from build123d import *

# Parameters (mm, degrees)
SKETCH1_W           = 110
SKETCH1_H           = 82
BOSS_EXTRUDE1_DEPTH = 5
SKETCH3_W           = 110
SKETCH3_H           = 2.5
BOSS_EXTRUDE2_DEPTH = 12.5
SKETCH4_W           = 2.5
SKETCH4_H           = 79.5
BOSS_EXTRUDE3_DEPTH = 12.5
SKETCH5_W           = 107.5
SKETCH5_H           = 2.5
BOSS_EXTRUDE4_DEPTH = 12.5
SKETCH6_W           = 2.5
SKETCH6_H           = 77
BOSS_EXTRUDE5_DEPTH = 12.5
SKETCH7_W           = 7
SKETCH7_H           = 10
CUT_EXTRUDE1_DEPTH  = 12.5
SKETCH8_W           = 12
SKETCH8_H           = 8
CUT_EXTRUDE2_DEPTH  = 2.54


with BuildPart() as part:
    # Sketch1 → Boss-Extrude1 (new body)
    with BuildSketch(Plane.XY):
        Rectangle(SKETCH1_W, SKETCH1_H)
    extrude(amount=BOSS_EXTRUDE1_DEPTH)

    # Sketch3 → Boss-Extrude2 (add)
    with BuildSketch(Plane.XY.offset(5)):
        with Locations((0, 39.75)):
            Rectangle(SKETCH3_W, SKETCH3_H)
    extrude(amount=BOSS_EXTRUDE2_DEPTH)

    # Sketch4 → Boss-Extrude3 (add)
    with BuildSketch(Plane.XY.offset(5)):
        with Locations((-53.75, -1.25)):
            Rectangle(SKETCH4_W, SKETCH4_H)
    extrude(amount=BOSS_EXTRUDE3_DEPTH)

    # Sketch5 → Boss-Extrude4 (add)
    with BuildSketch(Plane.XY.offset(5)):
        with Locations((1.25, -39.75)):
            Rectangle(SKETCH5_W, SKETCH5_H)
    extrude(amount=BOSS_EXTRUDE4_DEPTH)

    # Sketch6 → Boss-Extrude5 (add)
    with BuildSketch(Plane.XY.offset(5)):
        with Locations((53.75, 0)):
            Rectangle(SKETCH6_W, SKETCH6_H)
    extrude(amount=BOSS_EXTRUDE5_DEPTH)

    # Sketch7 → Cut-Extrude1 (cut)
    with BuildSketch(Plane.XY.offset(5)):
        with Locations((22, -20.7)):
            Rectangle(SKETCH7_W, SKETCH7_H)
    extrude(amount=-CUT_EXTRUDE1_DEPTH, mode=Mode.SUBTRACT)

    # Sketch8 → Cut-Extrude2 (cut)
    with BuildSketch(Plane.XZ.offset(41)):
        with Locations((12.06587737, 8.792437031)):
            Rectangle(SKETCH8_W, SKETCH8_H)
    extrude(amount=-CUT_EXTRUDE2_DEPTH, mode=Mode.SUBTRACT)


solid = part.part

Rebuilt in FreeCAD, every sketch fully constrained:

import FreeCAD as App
import Part
import Sketcher
from FreeCAD import Vector
Q = App.Units.Quantity


def add_polygon(sketch, points):
    """Adds a closed chain of lines whose ends are joined by coincident constraints."""
    first, n = sketch.GeometryCount, len(points)
    for a, b in zip(points, points[1:] + points[:1]):
        sketch.addGeometry(Part.LineSegment(App.Vector(*a, 0), App.Vector(*b, 0)), False)
    for i in range(n):
        sketch.addConstraint(Sketcher.Constraint("Coincident", first + i, 2, first + (i + 1) % n, 1))

doc = App.newDocument("Part")
body = doc.addObject("PartDesign::Body", "Body")

sketch1 = body.newObject("Sketcher::SketchObject", "Sketch")
sketch1.AttachmentSupport = (doc.getObject("XY_Plane"), [""])
sketch1.MapMode = "FlatFace"
add_polygon(sketch1, [(-55, 41), (-55, -41), (55, -41), (55, 41)])
sketch1.addConstraint([
    Sketcher.Constraint("Vertical", 0),
    Sketcher.Constraint("Horizontal", 1),
    Sketcher.Constraint("Vertical", 2),
    Sketcher.Constraint("Horizontal", 3),
    Sketcher.Constraint("Symmetric", 0, 2, 2, 2, -1, 1),
    Sketcher.Constraint("DistanceX", 1, 1, 1, 2, Q("110 mm")),
    Sketcher.Constraint("DistanceY", 0, 2, 0, 1, Q("82 mm")),
])
pad1 = body.newObject("PartDesign::Pad", "Pad")
pad1.Profile = sketch1
pad1.Length = 5

sketch2 = body.newObject("Sketcher::SketchObject", "Sketch001")
sketch2.AttachmentSupport = (doc.getObject("XY_Plane"), [""])
sketch2.MapMode = "FlatFace"
sketch2.AttachmentOffset = App.Placement(Vector(0, 0, 5), App.Rotation())
add_polygon(sketch2, [(-55, 41), (-55, 38.5), (55, 38.5), (55, 41)])
sketch2.addConstraint([
    Sketcher.Constraint("Vertical", 0),
    Sketcher.Constraint("Horizontal", 1),
    Sketcher.Constraint("Vertical", 2),
    Sketcher.Constraint("Horizontal", 3),
    Sketcher.Constraint("DistanceX", 1, 1, 1, 2, Q("110 mm")),
    Sketcher.Constraint("DistanceY", 0, 2, 0, 1, Q("2.5 mm")),
    Sketcher.Constraint("DistanceX", 0, 2, -1, 1, Q("55 mm")),
    Sketcher.Constraint("DistanceY", -1, 1, 2, 2, Q("41 mm")),
])
pad2 = body.newObject("PartDesign::Pad", "Pad001")
pad2.Profile = sketch2
pad2.Length = 12.5

sketch3 = body.newObject("Sketcher::SketchObject", "Sketch002")
sketch3.AttachmentSupport = (doc.getObject("XY_Plane"), [""])
sketch3.MapMode = "FlatFace"
sketch3.AttachmentOffset = App.Placement(Vector(0, 0, 5), App.Rotation())
add_polygon(sketch3, [(-55, 38.5), (-55, -41), (-52.5, -41), (-52.5, 38.5)])
sketch3.addConstraint([
    Sketcher.Constraint("Vertical", 0),
    Sketcher.Constraint("Horizontal", 1),
    Sketcher.Constraint("Vertical", 2),
    Sketcher.Constraint("Horizontal", 3),
    Sketcher.Constraint("DistanceX", 1, 1, 1, 2, Q("2.5 mm")),
    Sketcher.Constraint("DistanceY", 0, 2, 0, 1, Q("79.5 mm")),
    Sketcher.Constraint("DistanceX", 0, 2, -1, 1, Q("55 mm")),
    Sketcher.Constraint("DistanceY", 0, 2, -1, 1, Q("41 mm")),
])
pad3 = body.newObject("PartDesign::Pad", "Pad002")
pad3.Profile = sketch3
pad3.Length = 12.5

sketch4 = body.newObject("Sketcher::SketchObject", "Sketch003")
sketch4.AttachmentSupport = (doc.getObject("XY_Plane"), [""])
sketch4.MapMode = "FlatFace"
sketch4.AttachmentOffset = App.Placement(Vector(0, 0, 5), App.Rotation())
add_polygon(sketch4, [(-52.5, -38.5), (-52.5, -41), (55, -41), (55, -38.5)])
sketch4.addConstraint([
    Sketcher.Constraint("Vertical", 0),
    Sketcher.Constraint("Horizontal", 1),
    Sketcher.Constraint("Vertical", 2),
    Sketcher.Constraint("Horizontal", 3),
    Sketcher.Constraint("DistanceX", 1, 1, 1, 2, Q("107.5 mm")),
    Sketcher.Constraint("DistanceY", 0, 2, 0, 1, Q("2.5 mm")),
    Sketcher.Constraint("DistanceY", 0, 2, -1, 1, Q("41 mm")),
    Sketcher.Constraint("DistanceX", -1, 1, 1, 2, Q("55 mm")),
])
pad4 = body.newObject("PartDesign::Pad", "Pad003")
pad4.Profile = sketch4
pad4.Length = 12.5

sketch5 = body.newObject("Sketcher::SketchObject", "Sketch004")
sketch5.AttachmentSupport = (doc.getObject("XY_Plane"), [""])
sketch5.MapMode = "FlatFace"
sketch5.AttachmentOffset = App.Placement(Vector(0, 0, 5), App.Rotation())
add_polygon(sketch5, [(52.5, 38.5), (52.5, -38.5), (55, -38.5), (55, 38.5)])
sketch5.addConstraint([
    Sketcher.Constraint("Vertical", 0),
    Sketcher.Constraint("Horizontal", 1),
    Sketcher.Constraint("Vertical", 2),
    Sketcher.Constraint("Horizontal", 3),
    Sketcher.Constraint("DistanceY", 0, 2, 0, 1, Q("77 mm")),
    Sketcher.Constraint("DistanceX", 1, 1, 1, 2, Q("2.5 mm")),
    Sketcher.Constraint("DistanceX", -1, 1, 1, 2, Q("55 mm")),
    Sketcher.Constraint("DistanceY", 0, 2, -1, 1, Q("38.5 mm")),
])
pad5 = body.newObject("PartDesign::Pad", "Pad004")
pad5.Profile = sketch5
pad5.Length = 12.5

sketch6 = body.newObject("Sketcher::SketchObject", "Sketch005")
sketch6.AttachmentSupport = (doc.getObject("XY_Plane"), [""])
sketch6.MapMode = "FlatFace"
sketch6.AttachmentOffset = App.Placement(Vector(0, 0, 5), App.Rotation())
add_polygon(sketch6, [(18, -16), (18, -26), (26, -26), (26, -16)])
sketch6.addConstraint([
    Sketcher.Constraint("Vertical", 0),
    Sketcher.Constraint("Horizontal", 1),
    Sketcher.Constraint("Vertical", 2),
    Sketcher.Constraint("Horizontal", 3),
    Sketcher.Constraint("DistanceX", 1, 1, 1, 2, Q("7 mm")),
    Sketcher.Constraint("DistanceY", 0, 2, 0, 1, Q("10 mm")),
    Sketcher.Constraint("DistanceX", -1, 1, 0, 2, Q("18.5 mm")),
    Sketcher.Constraint("DistanceY", 0, 2, -1, 1, Q("25.7 mm")),
])
pocket1 = body.newObject("PartDesign::Pocket", "Pocket")
pocket1.Profile = sketch6
pocket1.Length = 12.5

sketch7 = body.newObject("Sketcher::SketchObject", "Sketch006")
sketch7.AttachmentSupport = (doc.getObject("XZ_Plane"), [""])
sketch7.MapMode = "FlatFace"
sketch7.AttachmentOffset = App.Placement(Vector(0, 0, 41), App.Rotation())
add_polygon(sketch7, [(6, 13), (6, 5), (18, 5), (18, 13)])
sketch7.addConstraint([
    Sketcher.Constraint("Vertical", 0),
    Sketcher.Constraint("Horizontal", 1),
    Sketcher.Constraint("Vertical", 2),
    Sketcher.Constraint("Horizontal", 3),
    Sketcher.Constraint("DistanceX", 1, 1, 1, 2, Q("12 mm")),
    Sketcher.Constraint("DistanceY", 0, 2, 0, 1, Q("8 mm")),
    Sketcher.Constraint("DistanceX", -1, 1, 0, 2, Q("6.065877 mm")),
    Sketcher.Constraint("DistanceY", -1, 1, 0, 2, Q("4.792437 mm")),
])
pocket2 = body.newObject("PartDesign::Pocket", "Pocket001")
pocket2.Profile = sketch7
pocket2.Length = 2.54

doc.recompute()
